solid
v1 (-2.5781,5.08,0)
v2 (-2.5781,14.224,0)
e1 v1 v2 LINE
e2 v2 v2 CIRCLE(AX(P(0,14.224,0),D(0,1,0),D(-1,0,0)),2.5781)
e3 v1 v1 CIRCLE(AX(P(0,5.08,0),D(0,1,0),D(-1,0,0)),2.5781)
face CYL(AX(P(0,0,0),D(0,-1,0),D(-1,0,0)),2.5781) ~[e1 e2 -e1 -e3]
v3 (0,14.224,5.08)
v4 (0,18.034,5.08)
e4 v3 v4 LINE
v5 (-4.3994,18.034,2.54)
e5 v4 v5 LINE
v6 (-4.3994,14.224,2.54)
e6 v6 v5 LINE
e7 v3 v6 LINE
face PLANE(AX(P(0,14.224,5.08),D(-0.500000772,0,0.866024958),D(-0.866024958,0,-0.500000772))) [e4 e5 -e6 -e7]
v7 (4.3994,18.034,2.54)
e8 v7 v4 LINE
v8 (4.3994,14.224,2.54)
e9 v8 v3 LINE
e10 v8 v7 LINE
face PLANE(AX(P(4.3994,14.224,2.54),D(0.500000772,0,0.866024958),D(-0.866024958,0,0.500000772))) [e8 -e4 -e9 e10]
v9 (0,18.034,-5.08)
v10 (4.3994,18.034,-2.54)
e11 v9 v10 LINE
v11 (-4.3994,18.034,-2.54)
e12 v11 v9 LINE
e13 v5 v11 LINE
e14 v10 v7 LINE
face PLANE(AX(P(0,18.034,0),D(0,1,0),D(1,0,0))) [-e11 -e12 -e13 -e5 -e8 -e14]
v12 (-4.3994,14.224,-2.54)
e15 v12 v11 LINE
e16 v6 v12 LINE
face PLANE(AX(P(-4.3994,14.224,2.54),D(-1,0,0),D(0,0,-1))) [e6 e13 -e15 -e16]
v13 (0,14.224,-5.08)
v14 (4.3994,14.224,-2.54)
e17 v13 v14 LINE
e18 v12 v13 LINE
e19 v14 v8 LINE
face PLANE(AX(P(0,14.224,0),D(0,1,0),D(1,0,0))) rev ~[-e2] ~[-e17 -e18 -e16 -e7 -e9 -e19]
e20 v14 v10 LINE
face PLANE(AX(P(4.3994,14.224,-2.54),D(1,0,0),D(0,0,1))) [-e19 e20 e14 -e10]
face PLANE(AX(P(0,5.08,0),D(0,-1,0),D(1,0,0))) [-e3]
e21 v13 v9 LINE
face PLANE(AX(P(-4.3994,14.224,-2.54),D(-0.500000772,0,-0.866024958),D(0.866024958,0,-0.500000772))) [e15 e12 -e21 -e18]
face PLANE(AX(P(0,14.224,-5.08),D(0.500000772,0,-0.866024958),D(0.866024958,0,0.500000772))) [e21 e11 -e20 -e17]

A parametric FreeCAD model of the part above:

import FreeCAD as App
import Part
import Sketcher
Q = App.Units.Quantity

doc = App.newDocument("Part")
params = doc.addObject("Spreadsheet::Sheet", "Params")
for row, (alias, value) in enumerate([
    ("sketch1_diameter", "0.203 in"),
    ("pad1_length", "0.56 in"),
    ("sketch2_height", "0.2 in"),
    ("sketch2_length", "0.2 in"),
    ("pad2_length", "0.15 in"),
    ("sketch3_diameter", "0.203 in"),
    ("pocket1_length", "0.2 in"),
], start=1):
    params.set(f"A{row}", alias)
    params.set(f"B{row}", "=" + value)
    params.setAlias(f"B{row}", alias)

body = doc.addObject("PartDesign::Body", "Body")

# Sketch on XZ plane
sketch1 = body.newObject("Sketcher::SketchObject", "Sketch")
sketch1.AttachmentSupport = (doc.getObject("XZ_Plane"), [""])
sketch1.MapMode = "FlatFace"
sketch1.addGeometry(Part.Circle(App.Vector(0, 0, 0), App.Vector(0, 0, 1), 2.6), False)
sketch1.addConstraint([
    Sketcher.Constraint("Coincident", 0, 3, -1, 1),
    Sketcher.Constraint("Diameter", 0, Q("0.203 in")),
])
sketch1.setExpression("Constraints[1]", "Params.sketch1_diameter")
pad1 = body.newObject("PartDesign::Pad", "Pad")
pad1.Profile = sketch1
pad1.setExpression("Length", "Params.pad1_length")
pad1.Reversed = True

# Sketch on XZ plane
sketch2 = body.newObject("Sketcher::SketchObject", "Sketch001")
sketch2.AttachmentSupport = (doc.getObject("XZ_Plane"), [""])
sketch2.MapMode = "FlatFace"
sketch2.AttachmentOffset = App.Placement(App.Vector(0, 0, -0.56 * 25.4), App.Rotation())
sketch2.addGeometry([
    Part.LineSegment(App.Vector(4, -3, 0), App.Vector(0, -5, 0)),  # 0
    Part.LineSegment(App.Vector(0, -5, 0), App.Vector(-4, -3, 0)),  # 1
    Part.LineSegment(App.Vector(-4, -3, 0), App.Vector(-4, 3, 0)),  # 2
    Part.LineSegment(App.Vector(-4, 3, 0), App.Vector(0, 5, 0)),  # 3
    Part.LineSegment(App.Vector(0, 5, 0), App.Vector(4, 3, 0)),  # 4
    Part.LineSegment(App.Vector(4, 3, 0), App.Vector(4, -3, 0)),  # 5
], False)
sketch2.addConstraint([
    Sketcher.Constraint("Coincident", 0, 2, 1, 1),
    Sketcher.Constraint("Coincident", 1, 2, 2, 1),
    Sketcher.Constraint("Coincident", 2, 2, 3, 1),
    Sketcher.Constraint("Coincident", 3, 2, 4, 1),
    Sketcher.Constraint("Coincident", 4, 2, 5, 1),
    Sketcher.Constraint("Coincident", 5, 2, 0, 1),
    Sketcher.Constraint("Vertical", 2),
    Sketcher.Constraint("Vertical", 5),
    Sketcher.Constraint("Symmetric", 0, 2, 3, 2, -1, 1),
    Sketcher.Constraint("Symmetric", 1, 2, 4, 2, -1, 1),
    Sketcher.Constraint("PointOnObject", 0, 2, -2),
    Sketcher.Constraint("Parallel", 0, 3),
    Sketcher.Constraint("Horizontal", 2, 2, 4, 2),
    Sketcher.Constraint("DistanceY", 2, 1, 2, 2, Q("0.2 in")),
    Sketcher.Constraint("Distance", 0, Q("0.2 in")),
    Sketcher.Constraint("DistanceY", 0, 2, -1, 1, Q("0.2 in")),
])
sketch2.setExpression("Constraints[13]", "Params.sketch2_height")
sketch2.setExpression("Constraints[14]", "Params.sketch2_length")
pad2 = body.newObject("PartDesign::Pad", "Pad001")
pad2.Profile = sketch2
pad2.setExpression("Length", "Params.pad2_length")
pad2.Reversed = True

# Sketch on XZ plane
sketch3 = body.newObject("Sketcher::SketchObject", "Sketch002")
sketch3.AttachmentSupport = (doc.getObject("XZ_Plane"), [""])
sketch3.MapMode = "FlatFace"
sketch3.addGeometry(Part.Circle(App.Vector(0, 0, 0), App.Vector(0, 0, 1), 2.6), False)
sketch3.addConstraint([
    Sketcher.Constraint("Coincident", 0, 3, -1, 1),
    Sketcher.Constraint("Diameter", 0, Q("0.203 in")),
])
sketch3.setExpression("Constraints[1]", "Params.sketch3_diameter")
pocket1 = body.newObject("PartDesign::Pocket", "Pocket")
pocket1.Profile = sketch3
pocket1.setExpression("Length", "Params.pocket1_length")

doc.recompute()
